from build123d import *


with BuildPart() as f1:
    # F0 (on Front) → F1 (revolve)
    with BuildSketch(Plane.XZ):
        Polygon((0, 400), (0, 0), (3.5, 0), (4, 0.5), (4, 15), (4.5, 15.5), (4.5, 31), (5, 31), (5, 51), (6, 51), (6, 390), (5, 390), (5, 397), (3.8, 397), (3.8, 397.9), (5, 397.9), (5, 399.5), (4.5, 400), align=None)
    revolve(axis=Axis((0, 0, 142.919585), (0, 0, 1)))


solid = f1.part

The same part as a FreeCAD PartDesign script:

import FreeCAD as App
import Part
import Sketcher
from FreeCAD import Vector
Q = App.Units.Quantity


def add_polygon(sketch, points):
    """Adds a closed chain of lines whose ends are joined by coincident constraints."""
    first, n = sketch.GeometryCount, len(points)
    for a, b in zip(points, points[1:] + points[:1]):
        sketch.addGeometry(Part.LineSegment(App.Vector(*a, 0), App.Vector(*b, 0)), False)
    for i in range(n):
        sketch.addConstraint(Sketcher.Constraint("Coincident", first + i, 2, first + (i + 1) % n, 1))

doc = App.newDocument("Part")
params = doc.addObject("Spreadsheet::Sheet", "Params")
for row, (alias, value) in enumerate([
    ("sketch1_width", "1 mm"),
    ("sketch1_height", "400 mm"),
    ("sketch1_height2", "20 mm"),
    ("sketch1_height3", "339 mm"),
    ("sketch1_height4", "7 mm"),
    ("revolution_angle", "360 deg"),
], start=1):
    params.set(f"A{row}", alias)
    params.set(f"B{row}", "=" + value)
    params.setAlias(f"B{row}", alias)

body = doc.addObject("PartDesign::Body", "Body")

# Sketch on XZ plane
sketch1 = doc.addObject("Sketcher::SketchObject", "Sketch")
body.addObject(sketch1)
sketch1.AttachmentSupport = (doc.XZ_Plane, [""])
sketch1.MapMode = "FlatFace"
add_polygon(sketch1, [(0, 400), (0, 0), (3.5, 0), (4, 0.5), (4, 15), (4.5, 15.5), (4.5, 31), (5, 31), (5, 51), (6, 51), (6, 390), (5, 390), (5, 397), (3.8, 397), (3.8, 397.9), (5, 397.9), (5, 399.5), (4.5, 400)])  # lines 0-17
sketch1.addConstraint([
    Sketcher.Constraint("Vertical", 0),
    Sketcher.Constraint("Horizontal", 1),
    Sketcher.Constraint("Vertical", 3),
    Sketcher.Constraint("Vertical", 5),
    Sketcher.Constraint("Horizontal", 6),
    Sketcher.Constraint("Vertical", 7),
    Sketcher.Constraint("Horizontal", 8),
    Sketcher.Constraint("Vertical", 9),
    Sketcher.Constraint("Horizontal", 10),
    Sketcher.Constraint("Vertical", 11),
    Sketcher.Constraint("Horizontal", 12),
    Sketcher.Constraint("Vertical", 13),
    Sketcher.Constraint("Horizontal", 14),
    Sketcher.Constraint("Vertical", 15),
    Sketcher.Constraint("Horizontal", 17),
    Sketcher.Constraint("Coincident", 0, 2, -1, 1),
    Sketcher.Constraint("Parallel", 2, 4),
    Sketcher.Constraint("Perpendicular", 4, 16),
    Sketcher.Constraint("Vertical", 7, 2, 10, 2),
    Sketcher.Constraint("Vertical", 11, 2, 14, 2),
    Sketcher.Constraint("Vertical", 5, 2, 16, 2),
    Sketcher.Constraint("Equal", 2, 4),
    Sketcher.Constraint("Equal", 4, 16),
    Sketcher.Constraint("DistanceX", 8, 1, 8, 2, Q("1 mm")),
    Sketcher.Constraint("DistanceY", 0, 2, 0, 1, Q("400 mm")),
    Sketcher.Constraint("DistanceY", 7, 1, 7, 2, Q("20 mm")),
    Sketcher.Constraint("DistanceY", 9, 1, 9, 2, Q("339 mm")),
    Sketcher.Constraint("DistanceY", 11, 1, 11, 2, Q("7 mm")),
    Sketcher.Constraint("Angle", 2, Q("45 deg")),
    Sketcher.Constraint("DistanceX", 1, 1, 1, 2, Q("3.5 mm")),
    Sketcher.Constraint("DistanceX", 6, 1, 6, 2, Q("0.5 mm")),
    Sketcher.Constraint("DistanceX", 12, 2, 12, 1, Q("1.2 mm")),
    Sketcher.Constraint("DistanceY", 3, 1, 3, 2, Q("14.5 mm")),
    Sketcher.Constraint("DistanceY", 5, 1, 5, 2, Q("15.5 mm")),
    Sketcher.Constraint("DistanceY", 13, 1, 13, 2, Q("0.9 mm")),
])
sketch1.setExpression("Constraints[41]", "Params.sketch1_width")
sketch1.setExpression("Constraints[42]", "Params.sketch1_height")
sketch1.setExpression("Constraints[43]", "Params.sketch1_height2")
sketch1.setExpression("Constraints[44]", "Params.sketch1_height3")
sketch1.setExpression("Constraints[45]", "Params.sketch1_height4")
revolution = doc.addObject("PartDesign::Revolution", "Revolution")
body.addObject(revolution)
revolution.Profile = sketch1
revolution.ReferenceAxis = (sketch1, ["V_Axis"])
revolution.setExpression("Angle", "Params.revolution_angle")

doc.recompute()
